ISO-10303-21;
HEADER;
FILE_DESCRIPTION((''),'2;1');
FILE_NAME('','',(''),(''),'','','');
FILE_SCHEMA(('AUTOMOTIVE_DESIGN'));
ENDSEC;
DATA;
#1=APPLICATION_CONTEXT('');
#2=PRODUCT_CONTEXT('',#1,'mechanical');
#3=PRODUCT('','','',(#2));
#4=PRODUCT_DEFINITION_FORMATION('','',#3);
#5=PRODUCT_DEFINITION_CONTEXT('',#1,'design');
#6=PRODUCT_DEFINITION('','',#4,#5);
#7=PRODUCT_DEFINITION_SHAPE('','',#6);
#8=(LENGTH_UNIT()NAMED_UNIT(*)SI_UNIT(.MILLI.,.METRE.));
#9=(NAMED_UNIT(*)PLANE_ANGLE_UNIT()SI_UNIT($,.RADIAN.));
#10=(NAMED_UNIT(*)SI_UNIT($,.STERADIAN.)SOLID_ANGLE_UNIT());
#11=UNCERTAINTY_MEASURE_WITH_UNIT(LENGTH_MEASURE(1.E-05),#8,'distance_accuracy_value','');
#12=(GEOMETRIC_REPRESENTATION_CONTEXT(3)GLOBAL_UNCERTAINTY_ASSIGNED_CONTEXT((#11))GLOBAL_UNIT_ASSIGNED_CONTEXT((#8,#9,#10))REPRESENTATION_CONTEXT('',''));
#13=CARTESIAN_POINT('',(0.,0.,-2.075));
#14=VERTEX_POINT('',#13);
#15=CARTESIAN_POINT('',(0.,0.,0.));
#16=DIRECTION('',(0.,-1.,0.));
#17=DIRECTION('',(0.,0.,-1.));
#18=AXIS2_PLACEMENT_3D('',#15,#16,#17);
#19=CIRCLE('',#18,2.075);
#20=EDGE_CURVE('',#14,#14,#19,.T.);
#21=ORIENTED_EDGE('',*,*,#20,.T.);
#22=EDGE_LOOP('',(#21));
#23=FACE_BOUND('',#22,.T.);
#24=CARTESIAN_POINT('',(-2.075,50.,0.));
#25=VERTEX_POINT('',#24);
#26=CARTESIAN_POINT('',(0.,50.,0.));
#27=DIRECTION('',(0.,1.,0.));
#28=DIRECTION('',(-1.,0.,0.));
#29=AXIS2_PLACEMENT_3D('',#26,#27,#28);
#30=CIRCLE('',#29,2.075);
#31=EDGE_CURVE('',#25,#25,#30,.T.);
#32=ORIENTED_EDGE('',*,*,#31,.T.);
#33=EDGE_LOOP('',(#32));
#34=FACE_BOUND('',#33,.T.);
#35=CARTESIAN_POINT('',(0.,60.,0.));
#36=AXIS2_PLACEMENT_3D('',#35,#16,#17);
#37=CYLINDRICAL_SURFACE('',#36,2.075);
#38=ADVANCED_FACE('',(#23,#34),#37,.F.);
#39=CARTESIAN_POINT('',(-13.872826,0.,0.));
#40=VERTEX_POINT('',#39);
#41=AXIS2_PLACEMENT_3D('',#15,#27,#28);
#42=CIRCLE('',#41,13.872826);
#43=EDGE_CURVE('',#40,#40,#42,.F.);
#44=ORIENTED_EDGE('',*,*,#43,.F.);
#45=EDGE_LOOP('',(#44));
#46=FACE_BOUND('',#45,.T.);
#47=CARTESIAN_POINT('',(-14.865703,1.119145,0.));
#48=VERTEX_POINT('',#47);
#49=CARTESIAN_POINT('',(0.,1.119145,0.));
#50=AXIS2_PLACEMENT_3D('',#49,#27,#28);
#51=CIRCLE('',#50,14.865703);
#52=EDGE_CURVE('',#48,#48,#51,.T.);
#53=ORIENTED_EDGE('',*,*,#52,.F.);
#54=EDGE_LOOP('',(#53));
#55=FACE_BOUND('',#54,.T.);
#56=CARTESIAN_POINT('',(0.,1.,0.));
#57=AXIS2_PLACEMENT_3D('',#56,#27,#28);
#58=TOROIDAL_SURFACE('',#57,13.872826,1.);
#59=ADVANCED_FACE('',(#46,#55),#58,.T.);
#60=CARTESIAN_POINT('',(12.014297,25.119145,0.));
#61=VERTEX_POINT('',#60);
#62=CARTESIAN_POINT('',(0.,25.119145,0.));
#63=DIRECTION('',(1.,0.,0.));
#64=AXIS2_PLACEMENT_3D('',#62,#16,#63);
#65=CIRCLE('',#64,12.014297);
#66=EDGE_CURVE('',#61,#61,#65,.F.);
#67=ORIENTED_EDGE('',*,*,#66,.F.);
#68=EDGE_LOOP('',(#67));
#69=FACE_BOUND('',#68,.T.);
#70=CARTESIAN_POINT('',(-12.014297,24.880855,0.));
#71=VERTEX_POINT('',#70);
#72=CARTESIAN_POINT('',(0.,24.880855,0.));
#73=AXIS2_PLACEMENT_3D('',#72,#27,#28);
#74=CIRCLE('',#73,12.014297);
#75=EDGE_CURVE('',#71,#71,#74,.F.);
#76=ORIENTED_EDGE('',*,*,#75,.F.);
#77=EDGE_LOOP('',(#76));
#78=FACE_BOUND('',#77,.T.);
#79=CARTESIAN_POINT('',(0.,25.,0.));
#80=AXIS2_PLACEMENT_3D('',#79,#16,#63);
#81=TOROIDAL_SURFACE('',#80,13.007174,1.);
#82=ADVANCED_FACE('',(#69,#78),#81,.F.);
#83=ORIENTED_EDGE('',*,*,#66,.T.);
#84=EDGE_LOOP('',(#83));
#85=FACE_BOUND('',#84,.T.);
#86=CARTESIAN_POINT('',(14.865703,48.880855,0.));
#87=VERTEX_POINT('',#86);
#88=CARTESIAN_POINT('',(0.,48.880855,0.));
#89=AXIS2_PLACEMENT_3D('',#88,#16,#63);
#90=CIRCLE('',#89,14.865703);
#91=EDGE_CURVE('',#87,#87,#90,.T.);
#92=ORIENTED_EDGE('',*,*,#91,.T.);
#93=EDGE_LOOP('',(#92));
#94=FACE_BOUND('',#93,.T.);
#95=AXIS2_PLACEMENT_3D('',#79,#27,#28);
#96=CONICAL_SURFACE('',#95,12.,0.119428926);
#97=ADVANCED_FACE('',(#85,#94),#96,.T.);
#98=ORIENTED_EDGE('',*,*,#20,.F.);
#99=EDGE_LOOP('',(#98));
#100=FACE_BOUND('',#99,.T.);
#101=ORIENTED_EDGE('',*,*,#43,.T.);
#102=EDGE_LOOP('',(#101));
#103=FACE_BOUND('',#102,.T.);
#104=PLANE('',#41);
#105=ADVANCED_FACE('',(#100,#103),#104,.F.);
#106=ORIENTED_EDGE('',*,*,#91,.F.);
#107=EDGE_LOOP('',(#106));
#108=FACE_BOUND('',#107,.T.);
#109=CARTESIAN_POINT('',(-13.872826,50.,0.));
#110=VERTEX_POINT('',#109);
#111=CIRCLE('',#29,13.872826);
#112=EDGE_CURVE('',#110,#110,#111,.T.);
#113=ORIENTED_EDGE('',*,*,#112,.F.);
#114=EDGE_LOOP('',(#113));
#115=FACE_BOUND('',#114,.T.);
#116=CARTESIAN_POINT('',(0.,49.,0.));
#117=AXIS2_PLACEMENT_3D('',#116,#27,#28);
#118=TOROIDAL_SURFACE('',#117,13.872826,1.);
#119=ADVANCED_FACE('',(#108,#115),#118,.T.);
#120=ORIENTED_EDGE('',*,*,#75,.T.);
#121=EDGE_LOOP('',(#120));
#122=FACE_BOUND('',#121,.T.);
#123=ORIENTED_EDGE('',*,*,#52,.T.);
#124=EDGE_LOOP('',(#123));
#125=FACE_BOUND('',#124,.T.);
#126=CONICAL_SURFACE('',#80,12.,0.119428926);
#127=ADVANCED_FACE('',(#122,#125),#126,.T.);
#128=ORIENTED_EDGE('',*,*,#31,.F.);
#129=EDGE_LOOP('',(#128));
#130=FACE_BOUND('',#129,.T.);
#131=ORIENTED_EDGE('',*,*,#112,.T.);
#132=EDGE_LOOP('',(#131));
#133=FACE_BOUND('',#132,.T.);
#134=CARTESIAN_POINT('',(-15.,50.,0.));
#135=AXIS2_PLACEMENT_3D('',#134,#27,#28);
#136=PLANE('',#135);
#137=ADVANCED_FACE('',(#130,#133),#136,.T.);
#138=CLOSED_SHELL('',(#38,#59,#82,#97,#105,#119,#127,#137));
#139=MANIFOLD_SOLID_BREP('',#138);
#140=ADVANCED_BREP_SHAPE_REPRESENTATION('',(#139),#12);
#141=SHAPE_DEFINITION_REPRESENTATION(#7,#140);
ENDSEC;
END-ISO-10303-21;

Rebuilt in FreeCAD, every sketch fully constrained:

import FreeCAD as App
import Part
import Sketcher
from FreeCAD import Vector


def edges_at(feature, points):
    """Names of the edges that pass closest to the given points."""
    edges = feature.Shape.Edges
    near = lambda p: min(range(len(edges)), key=lambda i: edges[i].distToShape(Part.Vertex(*p))[0])
    return sorted({f"Edge{near(p) + 1}" for p in points})


def add_polygon(sketch, points):
    """Adds a closed chain of lines whose ends are joined by coincident constraints."""
    first, n = sketch.GeometryCount, len(points)
    for a, b in zip(points, points[1:] + points[:1]):
        sketch.addGeometry(Part.LineSegment(App.Vector(*a, 0), App.Vector(*b, 0)), False)
    for i in range(n):
        sketch.addConstraint(Sketcher.Constraint("Coincident", first + i, 2, first + (i + 1) % n, 1))

doc = App.newDocument("Part")
body = doc.addObject("PartDesign::Body", "Body")

# Sketch on XY plane
sketch1 = body.newObject("Sketcher::SketchObject", "Sketch")
sketch1.AttachmentSupport = (doc.getObject("XY_Plane"), [""])
sketch1.MapMode = "FlatFace"
add_polygon(sketch1, [(0, 0), (0, 50), (-15, 50), (-12, 25), (-15, 0)])  # lines 0-4
sketch1.addConstraint([
    Sketcher.Constraint("Vertical", 0),
    Sketcher.Constraint("Horizontal", 1),
    Sketcher.Constraint("Horizontal", 4),
    Sketcher.Constraint("Coincident", 4, 2, -1, 1),
    Sketcher.Constraint("Vertical", 1, 2, 3, 2),
    Sketcher.Constraint("Equal", 2, 3),
    Sketcher.Constraint("DistanceX", 1, 2, 1, 1, 15.0),
    Sketcher.Constraint("DistanceY", 0, 1, 0, 2, 50.0),
    Sketcher.Constraint("DistanceX", 2, 2, -1, 1, 12.0),
])
revolution = body.newObject("PartDesign::Revolution", "Revolution")
revolution.Profile = sketch1
revolution.ReferenceAxis = (sketch1, ["V_Axis"])
revolution.Angle = 360

# Sketch on XZ plane
sketch2 = body.newObject("Sketcher::SketchObject", "Sketch001")
sketch2.AttachmentSupport = (doc.getObject("XZ_Plane"), [""])
sketch2.MapMode = "FlatFace"
sketch2.addGeometry(Part.Circle(Vector(0, 0, 0), Vector(0, 0, 1), 2.075), False)
sketch2.addConstraint([
    Sketcher.Constraint("Coincident", 0, 3, -1, 1),
    Sketcher.Constraint("Diameter", 0, 4.15),
])
pocket1 = body.newObject("PartDesign::Pocket", "Pocket")
pocket1.Profile = sketch2
pocket1.Length = 60
doc.recompute()

fillet = body.newObject("PartDesign::Fillet", "Fillet")
fillet.Base = (pocket1, edges_at(pocket1, [(-15, 50, 0), (-15, 0, 0), (-12, 25, 0)]))
fillet.Radius = 1

doc.recompute()
